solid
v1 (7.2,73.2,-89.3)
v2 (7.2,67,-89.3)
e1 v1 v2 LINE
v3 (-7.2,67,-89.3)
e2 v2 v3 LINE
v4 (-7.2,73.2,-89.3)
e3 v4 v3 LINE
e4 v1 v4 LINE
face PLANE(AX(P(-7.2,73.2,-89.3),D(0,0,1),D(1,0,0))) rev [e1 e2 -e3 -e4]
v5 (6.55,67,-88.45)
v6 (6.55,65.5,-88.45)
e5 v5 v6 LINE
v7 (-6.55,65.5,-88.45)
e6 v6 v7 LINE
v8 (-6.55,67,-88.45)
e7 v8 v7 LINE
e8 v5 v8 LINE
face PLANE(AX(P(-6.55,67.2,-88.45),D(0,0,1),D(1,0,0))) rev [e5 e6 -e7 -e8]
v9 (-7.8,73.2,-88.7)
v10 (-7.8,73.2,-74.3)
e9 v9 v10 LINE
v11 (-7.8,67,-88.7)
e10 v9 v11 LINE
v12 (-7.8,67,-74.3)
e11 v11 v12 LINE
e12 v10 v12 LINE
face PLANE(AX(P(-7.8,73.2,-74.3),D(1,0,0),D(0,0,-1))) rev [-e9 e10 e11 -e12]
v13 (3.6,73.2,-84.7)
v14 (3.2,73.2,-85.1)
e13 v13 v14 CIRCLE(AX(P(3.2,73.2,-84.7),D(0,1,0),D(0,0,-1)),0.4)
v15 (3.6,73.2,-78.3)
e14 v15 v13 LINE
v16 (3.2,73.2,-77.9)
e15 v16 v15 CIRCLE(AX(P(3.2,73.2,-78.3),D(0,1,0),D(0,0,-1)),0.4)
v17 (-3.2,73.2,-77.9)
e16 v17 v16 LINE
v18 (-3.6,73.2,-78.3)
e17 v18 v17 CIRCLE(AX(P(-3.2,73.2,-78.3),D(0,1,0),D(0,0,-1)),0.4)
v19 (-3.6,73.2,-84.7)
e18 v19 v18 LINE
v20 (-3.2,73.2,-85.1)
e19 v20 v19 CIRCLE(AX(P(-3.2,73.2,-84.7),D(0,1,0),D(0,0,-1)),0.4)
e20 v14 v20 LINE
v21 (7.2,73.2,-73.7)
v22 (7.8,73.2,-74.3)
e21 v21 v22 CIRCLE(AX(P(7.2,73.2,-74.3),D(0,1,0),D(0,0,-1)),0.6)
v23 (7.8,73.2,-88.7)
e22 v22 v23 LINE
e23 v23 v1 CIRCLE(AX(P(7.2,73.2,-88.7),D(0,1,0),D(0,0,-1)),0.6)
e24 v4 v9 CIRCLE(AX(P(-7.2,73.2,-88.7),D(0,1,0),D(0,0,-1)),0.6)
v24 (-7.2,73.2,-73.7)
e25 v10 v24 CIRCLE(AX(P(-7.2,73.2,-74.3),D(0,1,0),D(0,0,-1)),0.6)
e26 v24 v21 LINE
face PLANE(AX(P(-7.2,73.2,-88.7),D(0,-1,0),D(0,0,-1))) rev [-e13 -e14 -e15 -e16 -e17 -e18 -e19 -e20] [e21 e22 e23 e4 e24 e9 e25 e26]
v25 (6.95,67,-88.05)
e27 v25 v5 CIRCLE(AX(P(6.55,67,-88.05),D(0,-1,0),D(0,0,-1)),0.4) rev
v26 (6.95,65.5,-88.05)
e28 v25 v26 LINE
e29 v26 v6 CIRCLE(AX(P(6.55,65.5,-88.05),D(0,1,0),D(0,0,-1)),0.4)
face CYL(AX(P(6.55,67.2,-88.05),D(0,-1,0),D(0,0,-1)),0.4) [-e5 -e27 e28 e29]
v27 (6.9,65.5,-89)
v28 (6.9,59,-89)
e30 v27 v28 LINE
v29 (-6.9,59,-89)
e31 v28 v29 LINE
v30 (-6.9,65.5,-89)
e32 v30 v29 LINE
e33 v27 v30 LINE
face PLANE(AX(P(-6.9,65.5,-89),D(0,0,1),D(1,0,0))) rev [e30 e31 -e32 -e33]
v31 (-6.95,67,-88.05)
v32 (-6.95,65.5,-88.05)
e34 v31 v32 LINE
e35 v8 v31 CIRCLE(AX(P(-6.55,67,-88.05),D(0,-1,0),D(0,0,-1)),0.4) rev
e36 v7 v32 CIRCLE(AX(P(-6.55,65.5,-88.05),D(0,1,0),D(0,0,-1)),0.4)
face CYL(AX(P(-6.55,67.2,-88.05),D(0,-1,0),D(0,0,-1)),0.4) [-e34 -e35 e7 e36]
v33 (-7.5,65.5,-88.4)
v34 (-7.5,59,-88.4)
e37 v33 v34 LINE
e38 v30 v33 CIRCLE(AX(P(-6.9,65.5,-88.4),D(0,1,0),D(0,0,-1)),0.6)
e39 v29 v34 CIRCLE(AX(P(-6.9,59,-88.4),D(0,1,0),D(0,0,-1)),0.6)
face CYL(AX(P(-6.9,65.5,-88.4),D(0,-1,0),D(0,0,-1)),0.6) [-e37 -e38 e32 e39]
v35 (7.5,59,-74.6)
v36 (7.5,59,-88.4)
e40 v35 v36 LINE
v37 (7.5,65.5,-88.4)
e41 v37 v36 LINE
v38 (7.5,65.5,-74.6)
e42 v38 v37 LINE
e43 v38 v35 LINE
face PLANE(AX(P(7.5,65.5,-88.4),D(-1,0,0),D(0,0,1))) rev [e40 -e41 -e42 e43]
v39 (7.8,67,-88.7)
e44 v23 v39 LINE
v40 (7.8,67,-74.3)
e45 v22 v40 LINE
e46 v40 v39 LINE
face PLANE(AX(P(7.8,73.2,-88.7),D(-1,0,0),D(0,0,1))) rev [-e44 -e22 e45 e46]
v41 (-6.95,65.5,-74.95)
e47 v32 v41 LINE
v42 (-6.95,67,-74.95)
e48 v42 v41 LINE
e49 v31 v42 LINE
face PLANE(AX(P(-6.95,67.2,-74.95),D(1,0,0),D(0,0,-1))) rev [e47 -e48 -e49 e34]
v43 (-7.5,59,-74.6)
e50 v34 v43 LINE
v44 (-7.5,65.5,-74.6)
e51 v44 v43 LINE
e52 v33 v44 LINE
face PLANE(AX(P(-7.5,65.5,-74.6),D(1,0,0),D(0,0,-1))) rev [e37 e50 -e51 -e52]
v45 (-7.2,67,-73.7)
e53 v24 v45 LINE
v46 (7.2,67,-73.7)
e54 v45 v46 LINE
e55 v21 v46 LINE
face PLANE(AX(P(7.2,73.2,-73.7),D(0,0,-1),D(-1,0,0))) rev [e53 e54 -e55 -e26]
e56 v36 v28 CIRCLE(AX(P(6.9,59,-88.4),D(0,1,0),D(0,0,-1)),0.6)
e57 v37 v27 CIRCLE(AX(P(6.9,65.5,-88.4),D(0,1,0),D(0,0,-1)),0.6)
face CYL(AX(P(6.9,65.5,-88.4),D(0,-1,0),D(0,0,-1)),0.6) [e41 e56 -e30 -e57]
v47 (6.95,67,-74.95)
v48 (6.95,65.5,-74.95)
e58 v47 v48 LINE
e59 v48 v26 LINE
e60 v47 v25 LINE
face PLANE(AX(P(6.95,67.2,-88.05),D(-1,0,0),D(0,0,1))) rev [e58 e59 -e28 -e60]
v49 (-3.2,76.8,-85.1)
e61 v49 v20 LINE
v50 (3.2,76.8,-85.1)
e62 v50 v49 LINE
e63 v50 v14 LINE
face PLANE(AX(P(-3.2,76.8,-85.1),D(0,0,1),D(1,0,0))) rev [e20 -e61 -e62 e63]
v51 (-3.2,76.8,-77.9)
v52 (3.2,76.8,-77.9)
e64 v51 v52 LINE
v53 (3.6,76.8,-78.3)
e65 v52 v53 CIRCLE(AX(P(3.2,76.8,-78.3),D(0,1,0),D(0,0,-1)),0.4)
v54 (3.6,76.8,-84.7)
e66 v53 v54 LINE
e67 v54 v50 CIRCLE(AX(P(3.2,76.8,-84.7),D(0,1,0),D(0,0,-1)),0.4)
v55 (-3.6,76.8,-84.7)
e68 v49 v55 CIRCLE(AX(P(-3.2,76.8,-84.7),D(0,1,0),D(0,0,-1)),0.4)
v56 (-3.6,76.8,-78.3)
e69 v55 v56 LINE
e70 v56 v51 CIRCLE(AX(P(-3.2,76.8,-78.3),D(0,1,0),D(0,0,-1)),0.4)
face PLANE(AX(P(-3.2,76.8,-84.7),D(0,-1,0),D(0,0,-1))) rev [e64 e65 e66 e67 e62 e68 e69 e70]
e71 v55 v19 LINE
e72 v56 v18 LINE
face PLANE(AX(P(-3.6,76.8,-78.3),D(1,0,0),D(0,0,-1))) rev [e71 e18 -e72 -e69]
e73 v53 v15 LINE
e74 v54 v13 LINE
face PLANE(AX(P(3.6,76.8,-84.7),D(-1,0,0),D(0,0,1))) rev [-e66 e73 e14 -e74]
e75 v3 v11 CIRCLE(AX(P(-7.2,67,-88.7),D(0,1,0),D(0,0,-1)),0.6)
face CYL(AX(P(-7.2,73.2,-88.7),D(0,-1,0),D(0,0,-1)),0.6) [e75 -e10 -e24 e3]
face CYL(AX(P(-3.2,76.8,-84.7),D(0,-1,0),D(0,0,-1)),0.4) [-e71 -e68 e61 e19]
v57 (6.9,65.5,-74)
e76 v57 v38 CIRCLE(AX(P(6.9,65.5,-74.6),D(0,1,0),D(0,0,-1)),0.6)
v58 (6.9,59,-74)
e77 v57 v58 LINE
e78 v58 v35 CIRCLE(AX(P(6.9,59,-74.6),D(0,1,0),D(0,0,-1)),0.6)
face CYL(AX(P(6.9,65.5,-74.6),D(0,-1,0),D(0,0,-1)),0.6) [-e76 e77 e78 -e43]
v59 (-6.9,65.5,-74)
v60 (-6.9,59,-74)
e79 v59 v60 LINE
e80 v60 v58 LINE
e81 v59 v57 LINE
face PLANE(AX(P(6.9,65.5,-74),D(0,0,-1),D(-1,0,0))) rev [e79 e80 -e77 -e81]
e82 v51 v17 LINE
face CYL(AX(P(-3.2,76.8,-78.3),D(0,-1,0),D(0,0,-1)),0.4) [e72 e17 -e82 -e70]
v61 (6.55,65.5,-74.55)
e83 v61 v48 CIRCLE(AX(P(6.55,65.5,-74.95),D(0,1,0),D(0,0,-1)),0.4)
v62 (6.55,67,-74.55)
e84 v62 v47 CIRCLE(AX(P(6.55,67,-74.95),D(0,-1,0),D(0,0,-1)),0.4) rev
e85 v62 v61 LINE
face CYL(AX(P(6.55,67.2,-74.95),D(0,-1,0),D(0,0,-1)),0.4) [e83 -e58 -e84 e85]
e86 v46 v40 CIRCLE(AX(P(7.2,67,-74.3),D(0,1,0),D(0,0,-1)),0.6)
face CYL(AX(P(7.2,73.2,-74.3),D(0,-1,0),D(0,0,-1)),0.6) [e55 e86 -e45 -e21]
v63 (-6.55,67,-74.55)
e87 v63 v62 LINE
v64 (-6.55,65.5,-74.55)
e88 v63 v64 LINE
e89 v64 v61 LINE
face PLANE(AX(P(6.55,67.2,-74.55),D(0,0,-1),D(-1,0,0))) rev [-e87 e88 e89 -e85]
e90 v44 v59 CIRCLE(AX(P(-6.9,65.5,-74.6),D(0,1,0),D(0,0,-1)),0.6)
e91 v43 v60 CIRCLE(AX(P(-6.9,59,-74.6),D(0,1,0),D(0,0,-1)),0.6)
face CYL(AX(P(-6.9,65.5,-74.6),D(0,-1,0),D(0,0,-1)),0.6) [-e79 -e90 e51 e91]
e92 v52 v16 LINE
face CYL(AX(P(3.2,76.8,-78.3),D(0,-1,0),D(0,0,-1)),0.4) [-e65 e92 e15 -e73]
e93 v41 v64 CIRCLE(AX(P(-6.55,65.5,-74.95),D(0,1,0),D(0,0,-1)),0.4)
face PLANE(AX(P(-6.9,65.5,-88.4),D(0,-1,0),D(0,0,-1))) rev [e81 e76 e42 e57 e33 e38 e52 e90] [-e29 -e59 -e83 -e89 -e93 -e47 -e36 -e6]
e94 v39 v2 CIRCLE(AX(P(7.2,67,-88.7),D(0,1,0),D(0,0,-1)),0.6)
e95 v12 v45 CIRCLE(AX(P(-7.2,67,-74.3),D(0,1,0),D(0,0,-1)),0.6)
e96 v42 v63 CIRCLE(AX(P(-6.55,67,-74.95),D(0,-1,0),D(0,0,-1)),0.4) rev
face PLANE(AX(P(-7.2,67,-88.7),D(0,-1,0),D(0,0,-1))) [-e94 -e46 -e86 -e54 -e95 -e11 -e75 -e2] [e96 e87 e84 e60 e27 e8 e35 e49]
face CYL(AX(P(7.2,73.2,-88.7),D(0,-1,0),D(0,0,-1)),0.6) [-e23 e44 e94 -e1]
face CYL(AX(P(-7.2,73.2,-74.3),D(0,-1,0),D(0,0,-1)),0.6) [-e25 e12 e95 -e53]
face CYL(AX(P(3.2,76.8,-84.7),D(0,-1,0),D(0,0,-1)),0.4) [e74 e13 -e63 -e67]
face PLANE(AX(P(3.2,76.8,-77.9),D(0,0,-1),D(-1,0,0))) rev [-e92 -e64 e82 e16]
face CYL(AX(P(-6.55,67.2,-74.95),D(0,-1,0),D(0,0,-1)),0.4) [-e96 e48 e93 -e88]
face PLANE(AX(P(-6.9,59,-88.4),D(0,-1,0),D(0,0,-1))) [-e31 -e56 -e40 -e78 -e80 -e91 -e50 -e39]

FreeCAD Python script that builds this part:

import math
import FreeCAD as App
import Part
import Sketcher

doc = App.newDocument("Part")
body = doc.addObject("PartDesign::Body", "Body")

sketch1 = body.newObject("Sketcher::SketchObject", "Sketch")
sketch1.AttachmentSupport = (doc.getObject("XZ_Plane"), [""])
sketch1.MapMode = "FlatFace"
sketch1.AttachmentOffset = App.Placement(App.Vector(0, 0, -67), App.Rotation())
sketch1.addGeometry(Part.LineSegment(App.Vector(7.2, -89.3, 0), App.Vector(-7.2, -89.3, 0)), False)
sketch1.addGeometry(Part.ArcOfCircle(Part.Circle(App.Vector(-7.2, -88.7, 0), App.Vector(0, 0, 1), 0.6), math.radians(180), math.radians(270)), False)
sketch1.addGeometry(Part.LineSegment(App.Vector(-7.8, -88.7, 0), App.Vector(-7.8, -74.3, 0)), False)
sketch1.addGeometry(Part.ArcOfCircle(Part.Circle(App.Vector(-7.2, -74.3, 0), App.Vector(0, 0, 1), 0.6), math.radians(90), math.radians(180)), False)
sketch1.addGeometry(Part.LineSegment(App.Vector(-7.2, -73.7, 0), App.Vector(7.2, -73.7, 0)), False)
sketch1.addGeometry(Part.ArcOfCircle(Part.Circle(App.Vector(7.2, -74.3, 0), App.Vector(0, 0, 1), 0.6), math.radians(0), math.radians(90)), False)
sketch1.addGeometry(Part.LineSegment(App.Vector(7.8, -74.3, 0), App.Vector(7.8, -88.7, 0)), False)
sketch1.addGeometry(Part.ArcOfCircle(Part.Circle(App.Vector(7.2, -88.7, 0), App.Vector(0, 0, 1), 0.6), math.radians(-90), math.radians(0)), False)
sketch1.addConstraint(Sketcher.Constraint("Tangent", 0, 2, 1, 2))
sketch1.addConstraint(Sketcher.Constraint("Tangent", 1, 1, 2, 1))
sketch1.addConstraint(Sketcher.Constraint("Tangent", 2, 2, 3, 2))
sketch1.addConstraint(Sketcher.Constraint("Tangent", 3, 1, 4, 1))
sketch1.addConstraint(Sketcher.Constraint("Tangent", 4, 2, 5, 2))
sketch1.addConstraint(Sketcher.Constraint("Tangent", 5, 1, 6, 1))
sketch1.addConstraint(Sketcher.Constraint("Tangent", 6, 2, 7, 2))
sketch1.addConstraint(Sketcher.Constraint("Tangent", 7, 1, 0, 1))
sketch1.addConstraint(Sketcher.Constraint("Horizontal", 0))
sketch1.addConstraint(Sketcher.Constraint("Vertical", 2))
sketch1.addConstraint(Sketcher.Constraint("Horizontal", 4))
sketch1.addConstraint(Sketcher.Constraint("Vertical", 6))
sketch1.addConstraint(Sketcher.Constraint("Equal", 1, 3))
sketch1.addConstraint(Sketcher.Constraint("Equal", 3, 5))
sketch1.addConstraint(Sketcher.Constraint("Equal", 5, 7))
sketch1.addConstraint(Sketcher.Constraint("Equal", 4, 2))
sketch1.addConstraint(Sketcher.Constraint("Radius", 1, 0.6))
sketch1.addConstraint(Sketcher.Constraint("DistanceX", 0, 2, 0, 1, 14.4))
sketch1.addConstraint(Sketcher.Constraint("DistanceX", 1, 3, -1, 1, 7.2))
sketch1.addConstraint(Sketcher.Constraint("DistanceY", 1, 3, -1, 1, 88.7))
pad1 = body.newObject("PartDesign::Pad", "Pad")
pad1.Profile = sketch1
pad1.Length = 6.2
pad1.Reversed = True

sketch2 = body.newObject("Sketcher::SketchObject", "Sketch001")
sketch2.AttachmentSupport = (doc.getObject("XZ_Plane"), [""])
sketch2.MapMode = "FlatFace"
sketch2.AttachmentOffset = App.Placement(App.Vector(0, 0, -65.5), App.Rotation())
sketch2.addGeometry(Part.LineSegment(App.Vector(6.55, -88.45, 0), App.Vector(-6.55, -88.45, 0)), False)
sketch2.addGeometry(Part.ArcOfCircle(Part.Circle(App.Vector(-6.55, -88.05, 0), App.Vector(0, 0, 1), 0.4), math.radians(-180), math.radians(-90)), False)
sketch2.addGeometry(Part.LineSegment(App.Vector(-6.95, -88.05, 0), App.Vector(-6.95, -74.95, 0)), False)
sketch2.addGeometry(Part.ArcOfCircle(Part.Circle(App.Vector(-6.55, -74.95, 0), App.Vector(0, 0, 1), 0.4), math.radians(90), math.radians(180)), False)
sketch2.addGeometry(Part.LineSegment(App.Vector(-6.55, -74.55, 0), App.Vector(6.55, -74.55, 0)), False)
sketch2.addGeometry(Part.ArcOfCircle(Part.Circle(App.Vector(6.55, -74.95, 0), App.Vector(0, 0, 1), 0.4), math.radians(0), math.radians(90)), False)
sketch2.addGeometry(Part.LineSegment(App.Vector(6.95, -74.95, 0), App.Vector(6.95, -88.05, 0)), False)
sketch2.addGeometry(Part.ArcOfCircle(Part.Circle(App.Vector(6.55, -88.05, 0), App.Vector(0, 0, 1), 0.4), math.radians(-90), math.radians(0)), False)
sketch2.addConstraint(Sketcher.Constraint("Tangent", 0, 2, 1, 2))
sketch2.addConstraint(Sketcher.Constraint("Tangent", 1, 1, 2, 1))
sketch2.addConstraint(Sketcher.Constraint("Tangent", 2, 2, 3, 2))
sketch2.addConstraint(Sketcher.Constraint("Tangent", 3, 1, 4, 1))
sketch2.addConstraint(Sketcher.Constraint("Tangent", 4, 2, 5, 2))
sketch2.addConstraint(Sketcher.Constraint("Tangent", 5, 1, 6, 1))
sketch2.addConstraint(Sketcher.Constraint("Tangent", 6, 2, 7, 2))
sketch2.addConstraint(Sketcher.Constraint("Tangent", 7, 1, 0, 1))
sketch2.addConstraint(Sketcher.Constraint("Horizontal", 0))
sketch2.addConstraint(Sketcher.Constraint("Vertical", 2))
sketch2.addConstraint(Sketcher.Constraint("Horizontal", 4))
sketch2.addConstraint(Sketcher.Constraint("Vertical", 6))
sketch2.addConstraint(Sketcher.Constraint("Equal", 1, 3))
sketch2.addConstraint(Sketcher.Constraint("Equal", 3, 5))
sketch2.addConstraint(Sketcher.Constraint("Equal", 5, 7))
sketch2.addConstraint(Sketcher.Constraint("Equal", 4, 2))
sketch2.addConstraint(Sketcher.Constraint("Radius", 1, 0.4))
sketch2.addConstraint(Sketcher.Constraint("DistanceX", 0, 2, 0, 1, 13.1))
sketch2.addConstraint(Sketcher.Constraint("DistanceX", 1, 3, -1, 1, 6.55))
sketch2.addConstraint(Sketcher.Constraint("DistanceY", 1, 3, -1, 1, 88.05))
pad2 = body.newObject("PartDesign::Pad", "Pad001")
pad2.Profile = sketch2
pad2.Length = 1.7
pad2.Reversed = True

sketch3 = body.newObject("Sketcher::SketchObject", "Sketch002")
sketch3.AttachmentSupport = (doc.getObject("XZ_Plane"), [""])
sketch3.MapMode = "FlatFace"
sketch3.AttachmentOffset = App.Placement(App.Vector(0, 0, -59), App.Rotation())
sketch3.addGeometry(Part.LineSegment(App.Vector(6.9, -89, 0), App.Vector(-6.9, -89, 0)), False)
sketch3.addGeometry(Part.ArcOfCircle(Part.Circle(App.Vector(-6.9, -88.4, 0), App.Vector(0, 0, 1), 0.6), math.radians(180), math.radians(270)), False)
sketch3.addGeometry(Part.LineSegment(App.Vector(-7.5, -88.4, 0), App.Vector(-7.5, -74.6, 0)), False)
sketch3.addGeometry(Part.ArcOfCircle(Part.Circle(App.Vector(-6.9, -74.6, 0), App.Vector(0, 0, 1), 0.6), math.radians(90), math.radians(180)), False)
sketch3.addGeometry(Part.LineSegment(App.Vector(-6.9, -74, 0), App.Vector(6.9, -74, 0)), False)
sketch3.addGeometry(Part.ArcOfCircle(Part.Circle(App.Vector(6.9, -74.6, 0), App.Vector(0, 0, 1), 0.6), math.radians(0), math.radians(90)), False)
sketch3.addGeometry(Part.LineSegment(App.Vector(7.5, -74.6, 0), App.Vector(7.5, -88.4, 0)), False)
sketch3.addGeometry(Part.ArcOfCircle(Part.Circle(App.Vector(6.9, -88.4, 0), App.Vector(0, 0, 1), 0.6), math.radians(-90), math.radians(0)), False)
sketch3.addConstraint(Sketcher.Constraint("Tangent", 0, 2, 1, 2))
sketch3.addConstraint(Sketcher.Constraint("Tangent", 1, 1, 2, 1))
sketch3.addConstraint(Sketcher.Constraint("Tangent", 2, 2, 3, 2))
sketch3.addConstraint(Sketcher.Constraint("Tangent", 3, 1, 4, 1))
sketch3.addConstraint(Sketcher.Constraint("Tangent", 4, 2, 5, 2))
sketch3.addConstraint(Sketcher.Constraint("Tangent", 5, 1, 6, 1))
sketch3.addConstraint(Sketcher.Constraint("Tangent", 6, 2, 7, 2))
sketch3.addConstraint(Sketcher.Constraint("Tangent", 7, 1, 0, 1))
sketch3.addConstraint(Sketcher.Constraint("Horizontal", 0))
sketch3.addConstraint(Sketcher.Constraint("Vertical", 2))
sketch3.addConstraint(Sketcher.Constraint("Horizontal", 4))
sketch3.addConstraint(Sketcher.Constraint("Vertical", 6))
sketch3.addConstraint(Sketcher.Constraint("Equal", 1, 3))
sketch3.addConstraint(Sketcher.Constraint("Equal", 3, 5))
sketch3.addConstraint(Sketcher.Constraint("Equal", 5, 7))
sketch3.addConstraint(Sketcher.Constraint("Equal", 4, 2))
sketch3.addConstraint(Sketcher.Constraint("Radius", 1, 0.6))
sketch3.addConstraint(Sketcher.Constraint("DistanceX", 0, 2, 0, 1, 13.8))
sketch3.addConstraint(Sketcher.Constraint("DistanceY", 0, 2, -1, 1, 89.0))
sketch3.addConstraint(Sketcher.Constraint("DistanceX", 1, 3, -1, 1, 6.9))
pad3 = body.newObject("PartDesign::Pad", "Pad002")
pad3.Profile = sketch3
pad3.Length = 6.5
pad3.Reversed = True

sketch4 = body.newObject("Sketcher::SketchObject", "Sketch003")
sketch4.AttachmentSupport = (doc.getObject("XZ_Plane"), [""])
sketch4.MapMode = "FlatFace"
sketch4.AttachmentOffset = App.Placement(App.Vector(0, 0, -73.2), App.Rotation())
sketch4.addGeometry(Part.LineSegment(App.Vector(3.2, -85.1, 0), App.Vector(-3.2, -85.1, 0)), False)
sketch4.addGeometry(Part.ArcOfCircle(Part.Circle(App.Vector(-3.2, -84.7, 0), App.Vector(0, 0, 1), 0.4), math.radians(-180), math.radians(-90)), False)
sketch4.addGeometry(Part.LineSegment(App.Vector(-3.6, -84.7, 0), App.Vector(-3.6, -78.3, 0)), False)
sketch4.addGeometry(Part.ArcOfCircle(Part.Circle(App.Vector(-3.2, -78.3, 0), App.Vector(0, 0, 1), 0.4), math.radians(90), math.radians(180)), False)
sketch4.addGeometry(Part.LineSegment(App.Vector(-3.2, -77.9, 0), App.Vector(3.2, -77.9, 0)), False)
sketch4.addGeometry(Part.ArcOfCircle(Part.Circle(App.Vector(3.2, -78.3, 0), App.Vector(0, 0, 1), 0.4), math.radians(0), math.radians(90)), False)
sketch4.addGeometry(Part.LineSegment(App.Vector(3.6, -78.3, 0), App.Vector(3.6, -84.7, 0)), False)
sketch4.addGeometry(Part.ArcOfCircle(Part.Circle(App.Vector(3.2, -84.7, 0), App.Vector(0, 0, 1), 0.4), math.radians(-90), math.radians(0)), False)
sketch4.addConstraint(Sketcher.Constraint("Tangent", 0, 2, 1, 2))
sketch4.addConstraint(Sketcher.Constraint("Tangent", 1, 1, 2, 1))
sketch4.addConstraint(Sketcher.Constraint("Tangent", 2, 2, 3, 2))
sketch4.addConstraint(Sketcher.Constraint("Tangent", 3, 1, 4, 1))
sketch4.addConstraint(Sketcher.Constraint("Tangent", 4, 2, 5, 2))
sketch4.addConstraint(Sketcher.Constraint("Tangent", 5, 1, 6, 1))
sketch4.addConstraint(Sketcher.Constraint("Tangent", 6, 2, 7, 2))
sketch4.addConstraint(Sketcher.Constraint("Tangent", 7, 1, 0, 1))
sketch4.addConstraint(Sketcher.Constraint("Horizontal", 0))
sketch4.addConstraint(Sketcher.Constraint("Vertical", 2))
sketch4.addConstraint(Sketcher.Constraint("Horizontal", 4))
sketch4.addConstraint(Sketcher.Constraint("Vertical", 6))
sketch4.addConstraint(Sketcher.Constraint("Equal", 1, 3))
sketch4.addConstraint(Sketcher.Constraint("Equal", 3, 5))
sketch4.addConstraint(Sketcher.Constraint("Equal", 5, 7))
sketch4.addConstraint(Sketcher.Constraint("Equal", 4, 2))
sketch4.addConstraint(Sketcher.Constraint("Radius", 1, 0.4))
sketch4.addConstraint(Sketcher.Constraint("DistanceX", 0, 2, 0, 1, 6.4))
sketch4.addConstraint(Sketcher.Constraint("DistanceX", 1, 3, -1, 1, 3.2))
sketch4.addConstraint(Sketcher.Constraint("DistanceY", 1, 3, -1, 1, 84.7))
pad4 = body.newObject("PartDesign::Pad", "Pad003")
pad4.Profile = sketch4
pad4.Length = 3.6
pad4.Reversed = True

doc.recompute()
